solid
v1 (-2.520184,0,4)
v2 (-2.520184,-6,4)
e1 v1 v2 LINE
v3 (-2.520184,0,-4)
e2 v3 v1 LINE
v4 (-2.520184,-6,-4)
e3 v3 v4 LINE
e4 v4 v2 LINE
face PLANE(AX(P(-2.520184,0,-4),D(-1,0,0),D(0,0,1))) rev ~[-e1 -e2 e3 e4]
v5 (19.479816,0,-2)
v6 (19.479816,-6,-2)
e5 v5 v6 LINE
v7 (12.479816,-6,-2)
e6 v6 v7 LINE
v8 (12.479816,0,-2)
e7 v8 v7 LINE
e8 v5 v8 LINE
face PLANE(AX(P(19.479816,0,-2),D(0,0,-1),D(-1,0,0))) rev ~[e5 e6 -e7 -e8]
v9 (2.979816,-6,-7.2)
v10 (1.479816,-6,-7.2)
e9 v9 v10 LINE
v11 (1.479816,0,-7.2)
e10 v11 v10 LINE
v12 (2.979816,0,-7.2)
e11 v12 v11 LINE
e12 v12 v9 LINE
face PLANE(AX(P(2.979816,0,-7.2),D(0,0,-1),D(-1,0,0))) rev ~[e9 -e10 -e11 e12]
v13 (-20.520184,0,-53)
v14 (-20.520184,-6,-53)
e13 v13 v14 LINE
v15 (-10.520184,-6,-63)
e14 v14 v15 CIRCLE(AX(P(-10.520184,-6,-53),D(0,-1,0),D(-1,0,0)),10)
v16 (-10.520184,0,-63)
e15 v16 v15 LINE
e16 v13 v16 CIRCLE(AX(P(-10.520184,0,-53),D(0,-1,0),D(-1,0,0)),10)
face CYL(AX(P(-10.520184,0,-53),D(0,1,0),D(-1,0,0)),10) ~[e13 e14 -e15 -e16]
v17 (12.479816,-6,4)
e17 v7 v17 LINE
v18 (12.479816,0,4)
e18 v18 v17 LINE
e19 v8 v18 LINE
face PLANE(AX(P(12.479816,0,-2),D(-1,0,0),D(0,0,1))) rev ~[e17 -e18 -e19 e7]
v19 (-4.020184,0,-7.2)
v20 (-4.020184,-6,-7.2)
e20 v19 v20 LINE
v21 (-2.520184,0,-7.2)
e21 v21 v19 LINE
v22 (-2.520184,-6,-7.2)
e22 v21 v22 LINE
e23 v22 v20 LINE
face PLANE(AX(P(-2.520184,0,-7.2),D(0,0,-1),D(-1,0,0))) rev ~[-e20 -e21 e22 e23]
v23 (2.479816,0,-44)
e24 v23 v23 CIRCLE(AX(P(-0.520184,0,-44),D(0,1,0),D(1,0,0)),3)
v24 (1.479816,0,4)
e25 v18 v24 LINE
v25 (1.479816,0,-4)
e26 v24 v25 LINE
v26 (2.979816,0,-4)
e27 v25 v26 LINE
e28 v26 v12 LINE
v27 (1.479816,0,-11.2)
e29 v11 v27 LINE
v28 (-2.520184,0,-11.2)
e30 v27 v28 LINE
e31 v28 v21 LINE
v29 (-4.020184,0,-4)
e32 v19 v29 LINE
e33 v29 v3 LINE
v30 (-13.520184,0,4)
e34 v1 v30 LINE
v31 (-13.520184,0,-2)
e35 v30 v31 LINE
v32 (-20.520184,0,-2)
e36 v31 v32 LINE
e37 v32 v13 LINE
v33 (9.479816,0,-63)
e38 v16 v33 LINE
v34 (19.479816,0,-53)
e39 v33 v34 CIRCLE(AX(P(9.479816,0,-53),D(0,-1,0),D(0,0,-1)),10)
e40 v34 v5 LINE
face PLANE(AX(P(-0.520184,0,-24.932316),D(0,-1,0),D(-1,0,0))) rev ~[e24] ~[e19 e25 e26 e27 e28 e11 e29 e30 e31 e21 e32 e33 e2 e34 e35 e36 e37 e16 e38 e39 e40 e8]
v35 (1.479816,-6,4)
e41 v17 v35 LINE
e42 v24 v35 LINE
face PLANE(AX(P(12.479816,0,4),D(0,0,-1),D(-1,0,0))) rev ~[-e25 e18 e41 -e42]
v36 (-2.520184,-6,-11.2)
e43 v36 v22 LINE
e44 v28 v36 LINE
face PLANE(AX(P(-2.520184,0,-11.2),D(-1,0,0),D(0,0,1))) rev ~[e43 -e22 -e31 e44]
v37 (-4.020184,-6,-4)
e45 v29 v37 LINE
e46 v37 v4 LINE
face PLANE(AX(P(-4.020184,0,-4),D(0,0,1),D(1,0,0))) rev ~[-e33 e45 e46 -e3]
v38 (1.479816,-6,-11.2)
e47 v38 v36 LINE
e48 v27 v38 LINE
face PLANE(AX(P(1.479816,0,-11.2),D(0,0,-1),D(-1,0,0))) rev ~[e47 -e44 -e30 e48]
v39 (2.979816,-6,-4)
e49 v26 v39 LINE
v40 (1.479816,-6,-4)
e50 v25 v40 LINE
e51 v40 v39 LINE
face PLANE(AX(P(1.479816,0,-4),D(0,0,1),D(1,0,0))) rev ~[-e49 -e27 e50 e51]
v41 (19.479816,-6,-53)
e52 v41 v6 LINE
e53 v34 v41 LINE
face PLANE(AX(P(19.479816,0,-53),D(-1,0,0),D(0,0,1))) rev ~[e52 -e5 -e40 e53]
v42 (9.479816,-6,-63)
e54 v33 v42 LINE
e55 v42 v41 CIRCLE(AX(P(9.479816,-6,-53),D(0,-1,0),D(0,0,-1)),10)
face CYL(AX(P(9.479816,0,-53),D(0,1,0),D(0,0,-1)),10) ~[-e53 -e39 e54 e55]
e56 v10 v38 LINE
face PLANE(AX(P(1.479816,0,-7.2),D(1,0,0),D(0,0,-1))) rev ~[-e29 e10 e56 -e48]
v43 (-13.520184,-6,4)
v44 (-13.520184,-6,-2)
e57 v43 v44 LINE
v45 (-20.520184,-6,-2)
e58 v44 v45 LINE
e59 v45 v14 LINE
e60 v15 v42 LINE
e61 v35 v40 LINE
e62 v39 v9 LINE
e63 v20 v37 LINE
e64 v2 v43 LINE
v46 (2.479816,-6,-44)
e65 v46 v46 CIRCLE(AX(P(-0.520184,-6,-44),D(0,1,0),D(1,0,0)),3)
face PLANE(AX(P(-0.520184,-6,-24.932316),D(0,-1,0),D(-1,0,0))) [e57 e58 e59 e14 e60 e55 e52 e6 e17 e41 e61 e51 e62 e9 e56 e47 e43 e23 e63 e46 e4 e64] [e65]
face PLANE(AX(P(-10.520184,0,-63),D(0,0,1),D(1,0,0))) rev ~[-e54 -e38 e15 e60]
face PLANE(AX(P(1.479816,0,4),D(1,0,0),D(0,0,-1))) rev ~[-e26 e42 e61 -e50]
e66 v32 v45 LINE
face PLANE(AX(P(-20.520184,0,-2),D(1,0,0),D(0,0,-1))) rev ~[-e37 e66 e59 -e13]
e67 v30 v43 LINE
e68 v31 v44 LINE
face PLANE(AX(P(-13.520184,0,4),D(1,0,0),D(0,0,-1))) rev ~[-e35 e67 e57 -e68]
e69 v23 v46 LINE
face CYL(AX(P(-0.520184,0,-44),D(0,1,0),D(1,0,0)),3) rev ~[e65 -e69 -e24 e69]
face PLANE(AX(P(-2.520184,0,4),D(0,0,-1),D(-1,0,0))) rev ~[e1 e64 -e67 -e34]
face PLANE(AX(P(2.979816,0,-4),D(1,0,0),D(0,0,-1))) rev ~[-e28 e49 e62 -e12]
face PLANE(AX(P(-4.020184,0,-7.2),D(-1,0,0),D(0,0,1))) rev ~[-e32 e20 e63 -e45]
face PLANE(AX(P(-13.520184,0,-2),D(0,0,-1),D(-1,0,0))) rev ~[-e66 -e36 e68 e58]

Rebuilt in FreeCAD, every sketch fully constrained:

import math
import FreeCAD as App
import Part
import Sketcher

doc = App.newDocument("Part")
body = doc.addObject("PartDesign::Body", "Body")

# Sketch on XZ plane
sketch1 = body.newObject("Sketcher::SketchObject", "Sketch")
sketch1.AttachmentSupport = (doc.getObject("XZ_Plane"), [""])
sketch1.MapMode = "FlatFace"
sketch1.addGeometry(Part.LineSegment(App.Vector(9.5, -63, 0), App.Vector(-10.5, -63, 0)), False)
sketch1.addGeometry(Part.ArcOfCircle(Part.Circle(App.Vector(-10.5, -53, 0), App.Vector(0, 0, 1), 10), math.radians(180), math.radians(270)), False)
sketch1.addGeometry(Part.LineSegment(App.Vector(-20.5, -53, 0), App.Vector(-20.5, -2, 0)), False)
sketch1.addGeometry(Part.LineSegment(App.Vector(-20.5, -2, 0), App.Vector(-13.5, -2, 0)), False)
sketch1.addGeometry(Part.LineSegment(App.Vector(-13.5, -2, 0), App.Vector(-13.5, 4, 0)), False)
sketch1.addGeometry(Part.LineSegment(App.Vector(-13.5, 4, 0), App.Vector(-2.5, 4, 0)), False)
sketch1.addGeometry(Part.LineSegment(App.Vector(-2.5, 4, 0), App.Vector(-2.5, -4, 0)), False)
sketch1.addGeometry(Part.LineSegment(App.Vector(-2.5, -4, 0), App.Vector(-4, -4, 0)), False)
sketch1.addGeometry(Part.LineSegment(App.Vector(-4, -4, 0), App.Vector(-4, -7.2, 0)), False)
sketch1.addGeometry(Part.LineSegment(App.Vector(-4, -7.2, 0), App.Vector(-2.5, -7.2, 0)), False)
sketch1.addGeometry(Part.LineSegment(App.Vector(-2.5, -7.2, 0), App.Vector(-2.5, -11.2, 0)), False)
sketch1.addGeometry(Part.LineSegment(App.Vector(-2.5, -11.2, 0), App.Vector(1.5, -11.2, 0)), False)
sketch1.addGeometry(Part.LineSegment(App.Vector(1.5, -11.2, 0), App.Vector(1.5, -7.2, 0)), False)
sketch1.addGeometry(Part.LineSegment(App.Vector(1.5, -7.2, 0), App.Vector(3, -7.2, 0)), False)
sketch1.addGeometry(Part.LineSegment(App.Vector(3, -7.2, 0), App.Vector(3, -4, 0)), False)
sketch1.addGeometry(Part.LineSegment(App.Vector(3, -4, 0), App.Vector(1.5, -4, 0)), False)
sketch1.addGeometry(Part.LineSegment(App.Vector(1.5, -4, 0), App.Vector(1.5, 4, 0)), False)
sketch1.addGeometry(Part.LineSegment(App.Vector(1.5, 4, 0), App.Vector(12.5, 4, 0)), False)
sketch1.addGeometry(Part.LineSegment(App.Vector(12.5, 4, 0), App.Vector(12.5, -2, 0)), False)
sketch1.addGeometry(Part.LineSegment(App.Vector(12.5, -2, 0), App.Vector(19.5, -2, 0)), False)
sketch1.addGeometry(Part.LineSegment(App.Vector(19.5, -2, 0), App.Vector(19.5, -53, 0)), False)
sketch1.addGeometry(Part.ArcOfCircle(Part.Circle(App.Vector(9.5, -53, 0), App.Vector(0, 0, 1), 10), math.radians(-90), math.radians(0)), False)
sketch1.addGeometry(Part.Circle(App.Vector(-0.5, -44, 0), App.Vector(0, 0, 1), 3), False)
sketch1.addConstraint(Sketcher.Constraint("Tangent", 0, 2, 1, 2))
sketch1.addConstraint(Sketcher.Constraint("Tangent", 1, 1, 2, 1))
sketch1.addConstraint(Sketcher.Constraint("Coincident", 2, 2, 3, 1))
sketch1.addConstraint(Sketcher.Constraint("Coincident", 3, 2, 4, 1))
sketch1.addConstraint(Sketcher.Constraint("Coincident", 4, 2, 5, 1))
sketch1.addConstraint(Sketcher.Constraint("Coincident", 5, 2, 6, 1))
sketch1.addConstraint(Sketcher.Constraint("Coincident", 6, 2, 7, 1))
sketch1.addConstraint(Sketcher.Constraint("Coincident", 7, 2, 8, 1))
sketch1.addConstraint(Sketcher.Constraint("Coincident", 8, 2, 9, 1))
sketch1.addConstraint(Sketcher.Constraint("Coincident", 9, 2, 10, 1))
sketch1.addConstraint(Sketcher.Constraint("Coincident", 10, 2, 11, 1))
sketch1.addConstraint(Sketcher.Constraint("Coincident", 11, 2, 12, 1))
sketch1.addConstraint(Sketcher.Constraint("Coincident", 12, 2, 13, 1))
sketch1.addConstraint(Sketcher.Constraint("Coincident", 13, 2, 14, 1))
sketch1.addConstraint(Sketcher.Constraint("Coincident", 14, 2, 15, 1))
sketch1.addConstraint(Sketcher.Constraint("Coincident", 15, 2, 16, 1))
sketch1.addConstraint(Sketcher.Constraint("Coincident", 16, 2, 17, 1))
sketch1.addConstraint(Sketcher.Constraint("Coincident", 17, 2, 18, 1))
sketch1.addConstraint(Sketcher.Constraint("Coincident", 18, 2, 19, 1))
sketch1.addConstraint(Sketcher.Constraint("Coincident", 19, 2, 20, 1))
sketch1.addConstraint(Sketcher.Constraint("Tangent", 20, 2, 21, 2))
sketch1.addConstraint(Sketcher.Constraint("Tangent", 21, 1, 0, 1))
sketch1.addConstraint(Sketcher.Constraint("Horizontal", 0))
sketch1.addConstraint(Sketcher.Constraint("Vertical", 2))
sketch1.addConstraint(Sketcher.Constraint("Horizontal", 3))
sketch1.addConstraint(Sketcher.Constraint("Vertical", 4))
sketch1.addConstraint(Sketcher.Constraint("Horizontal", 5))
sketch1.addConstraint(Sketcher.Constraint("Vertical", 6))
sketch1.addConstraint(Sketcher.Constraint("Horizontal", 7))
sketch1.addConstraint(Sketcher.Constraint("Vertical", 8))
sketch1.addConstraint(Sketcher.Constraint("Horizontal", 9))
sketch1.addConstraint(Sketcher.Constraint("Vertical", 10))
sketch1.addConstraint(Sketcher.Constraint("Horizontal", 11))
sketch1.addConstraint(Sketcher.Constraint("Vertical", 12))
sketch1.addConstraint(Sketcher.Constraint("Horizontal", 13))
sketch1.addConstraint(Sketcher.Constraint("Vertical", 14))
sketch1.addConstraint(Sketcher.Constraint("Horizontal", 15))
sketch1.addConstraint(Sketcher.Constraint("Vertical", 16))
sketch1.addConstraint(Sketcher.Constraint("Horizontal", 17))
sketch1.addConstraint(Sketcher.Constraint("Vertical", 18))
sketch1.addConstraint(Sketcher.Constraint("Horizontal", 19))
sketch1.addConstraint(Sketcher.Constraint("Vertical", 20))
sketch1.addConstraint(Sketcher.Constraint("Equal", 1, 21))
sketch1.addConstraint(Sketcher.Constraint("Horizontal", 9, 2, 12, 2))
sketch1.addConstraint(Sketcher.Constraint("Horizontal", 7, 2, 14, 2))
sketch1.addConstraint(Sketcher.Constraint("Horizontal", 5, 2, 16, 2))
sketch1.addConstraint(Sketcher.Constraint("Horizontal", 3, 2, 18, 2))
sketch1.addConstraint(Sketcher.Constraint("Vertical", 6, 2, 9, 2))
sketch1.addConstraint(Sketcher.Constraint("Vertical", 12, 2, 15, 2))
sketch1.addConstraint(Sketcher.Constraint("Equal", 9, 13))
sketch1.addConstraint(Sketcher.Constraint("Equal", 5, 17))
sketch1.addConstraint(Sketcher.Constraint("Equal", 3, 19))
sketch1.addConstraint(Sketcher.Constraint("Equal", 11, 10))
sketch1.addConstraint(Sketcher.Constraint("Diameter", 22, 6.0))
sketch1.addConstraint(Sketcher.Constraint("Radius", 1, 10.0))
sketch1.addConstraint(Sketcher.Constraint("DistanceX", 0, 2, 0, 1, 20.0))
sketch1.addConstraint(Sketcher.Constraint("DistanceX", 3, 1, 3, 2, 7.0))
sketch1.addConstraint(Sketcher.Constraint("DistanceX", 5, 1, 5, 2, 11.0))
sketch1.addConstraint(Sketcher.Constraint("DistanceY", 2, 1, 2, 2, 51.0))
sketch1.addConstraint(Sketcher.Constraint("DistanceY", 4, 1, 4, 2, 6.0))
sketch1.addConstraint(Sketcher.Constraint("DistanceY", 6, 2, 6, 1, 8.0))
sketch1.addConstraint(Sketcher.Constraint("DistanceX", 7, 2, 7, 1, 1.5))
sketch1.addConstraint(Sketcher.Constraint("DistanceY", 8, 2, 8, 1, 3.2))
sketch1.addConstraint(Sketcher.Constraint("DistanceY", 1, 3, -1, 1, 53.0))
sketch1.addConstraint(Sketcher.Constraint("DistanceY", 22, 3, -1, 1, 44.0))
sketch1.addConstraint(Sketcher.Constraint("DistanceX", 1, 3, 22, 3, 10.0))
sketch1.addConstraint(Sketcher.Constraint("DistanceX", 1, 3, -1, 1, 10.520184))
pad1 = body.newObject("PartDesign::Pad", "Pad")
pad1.Profile = sketch1
pad1.Length = 6

doc.recompute()
